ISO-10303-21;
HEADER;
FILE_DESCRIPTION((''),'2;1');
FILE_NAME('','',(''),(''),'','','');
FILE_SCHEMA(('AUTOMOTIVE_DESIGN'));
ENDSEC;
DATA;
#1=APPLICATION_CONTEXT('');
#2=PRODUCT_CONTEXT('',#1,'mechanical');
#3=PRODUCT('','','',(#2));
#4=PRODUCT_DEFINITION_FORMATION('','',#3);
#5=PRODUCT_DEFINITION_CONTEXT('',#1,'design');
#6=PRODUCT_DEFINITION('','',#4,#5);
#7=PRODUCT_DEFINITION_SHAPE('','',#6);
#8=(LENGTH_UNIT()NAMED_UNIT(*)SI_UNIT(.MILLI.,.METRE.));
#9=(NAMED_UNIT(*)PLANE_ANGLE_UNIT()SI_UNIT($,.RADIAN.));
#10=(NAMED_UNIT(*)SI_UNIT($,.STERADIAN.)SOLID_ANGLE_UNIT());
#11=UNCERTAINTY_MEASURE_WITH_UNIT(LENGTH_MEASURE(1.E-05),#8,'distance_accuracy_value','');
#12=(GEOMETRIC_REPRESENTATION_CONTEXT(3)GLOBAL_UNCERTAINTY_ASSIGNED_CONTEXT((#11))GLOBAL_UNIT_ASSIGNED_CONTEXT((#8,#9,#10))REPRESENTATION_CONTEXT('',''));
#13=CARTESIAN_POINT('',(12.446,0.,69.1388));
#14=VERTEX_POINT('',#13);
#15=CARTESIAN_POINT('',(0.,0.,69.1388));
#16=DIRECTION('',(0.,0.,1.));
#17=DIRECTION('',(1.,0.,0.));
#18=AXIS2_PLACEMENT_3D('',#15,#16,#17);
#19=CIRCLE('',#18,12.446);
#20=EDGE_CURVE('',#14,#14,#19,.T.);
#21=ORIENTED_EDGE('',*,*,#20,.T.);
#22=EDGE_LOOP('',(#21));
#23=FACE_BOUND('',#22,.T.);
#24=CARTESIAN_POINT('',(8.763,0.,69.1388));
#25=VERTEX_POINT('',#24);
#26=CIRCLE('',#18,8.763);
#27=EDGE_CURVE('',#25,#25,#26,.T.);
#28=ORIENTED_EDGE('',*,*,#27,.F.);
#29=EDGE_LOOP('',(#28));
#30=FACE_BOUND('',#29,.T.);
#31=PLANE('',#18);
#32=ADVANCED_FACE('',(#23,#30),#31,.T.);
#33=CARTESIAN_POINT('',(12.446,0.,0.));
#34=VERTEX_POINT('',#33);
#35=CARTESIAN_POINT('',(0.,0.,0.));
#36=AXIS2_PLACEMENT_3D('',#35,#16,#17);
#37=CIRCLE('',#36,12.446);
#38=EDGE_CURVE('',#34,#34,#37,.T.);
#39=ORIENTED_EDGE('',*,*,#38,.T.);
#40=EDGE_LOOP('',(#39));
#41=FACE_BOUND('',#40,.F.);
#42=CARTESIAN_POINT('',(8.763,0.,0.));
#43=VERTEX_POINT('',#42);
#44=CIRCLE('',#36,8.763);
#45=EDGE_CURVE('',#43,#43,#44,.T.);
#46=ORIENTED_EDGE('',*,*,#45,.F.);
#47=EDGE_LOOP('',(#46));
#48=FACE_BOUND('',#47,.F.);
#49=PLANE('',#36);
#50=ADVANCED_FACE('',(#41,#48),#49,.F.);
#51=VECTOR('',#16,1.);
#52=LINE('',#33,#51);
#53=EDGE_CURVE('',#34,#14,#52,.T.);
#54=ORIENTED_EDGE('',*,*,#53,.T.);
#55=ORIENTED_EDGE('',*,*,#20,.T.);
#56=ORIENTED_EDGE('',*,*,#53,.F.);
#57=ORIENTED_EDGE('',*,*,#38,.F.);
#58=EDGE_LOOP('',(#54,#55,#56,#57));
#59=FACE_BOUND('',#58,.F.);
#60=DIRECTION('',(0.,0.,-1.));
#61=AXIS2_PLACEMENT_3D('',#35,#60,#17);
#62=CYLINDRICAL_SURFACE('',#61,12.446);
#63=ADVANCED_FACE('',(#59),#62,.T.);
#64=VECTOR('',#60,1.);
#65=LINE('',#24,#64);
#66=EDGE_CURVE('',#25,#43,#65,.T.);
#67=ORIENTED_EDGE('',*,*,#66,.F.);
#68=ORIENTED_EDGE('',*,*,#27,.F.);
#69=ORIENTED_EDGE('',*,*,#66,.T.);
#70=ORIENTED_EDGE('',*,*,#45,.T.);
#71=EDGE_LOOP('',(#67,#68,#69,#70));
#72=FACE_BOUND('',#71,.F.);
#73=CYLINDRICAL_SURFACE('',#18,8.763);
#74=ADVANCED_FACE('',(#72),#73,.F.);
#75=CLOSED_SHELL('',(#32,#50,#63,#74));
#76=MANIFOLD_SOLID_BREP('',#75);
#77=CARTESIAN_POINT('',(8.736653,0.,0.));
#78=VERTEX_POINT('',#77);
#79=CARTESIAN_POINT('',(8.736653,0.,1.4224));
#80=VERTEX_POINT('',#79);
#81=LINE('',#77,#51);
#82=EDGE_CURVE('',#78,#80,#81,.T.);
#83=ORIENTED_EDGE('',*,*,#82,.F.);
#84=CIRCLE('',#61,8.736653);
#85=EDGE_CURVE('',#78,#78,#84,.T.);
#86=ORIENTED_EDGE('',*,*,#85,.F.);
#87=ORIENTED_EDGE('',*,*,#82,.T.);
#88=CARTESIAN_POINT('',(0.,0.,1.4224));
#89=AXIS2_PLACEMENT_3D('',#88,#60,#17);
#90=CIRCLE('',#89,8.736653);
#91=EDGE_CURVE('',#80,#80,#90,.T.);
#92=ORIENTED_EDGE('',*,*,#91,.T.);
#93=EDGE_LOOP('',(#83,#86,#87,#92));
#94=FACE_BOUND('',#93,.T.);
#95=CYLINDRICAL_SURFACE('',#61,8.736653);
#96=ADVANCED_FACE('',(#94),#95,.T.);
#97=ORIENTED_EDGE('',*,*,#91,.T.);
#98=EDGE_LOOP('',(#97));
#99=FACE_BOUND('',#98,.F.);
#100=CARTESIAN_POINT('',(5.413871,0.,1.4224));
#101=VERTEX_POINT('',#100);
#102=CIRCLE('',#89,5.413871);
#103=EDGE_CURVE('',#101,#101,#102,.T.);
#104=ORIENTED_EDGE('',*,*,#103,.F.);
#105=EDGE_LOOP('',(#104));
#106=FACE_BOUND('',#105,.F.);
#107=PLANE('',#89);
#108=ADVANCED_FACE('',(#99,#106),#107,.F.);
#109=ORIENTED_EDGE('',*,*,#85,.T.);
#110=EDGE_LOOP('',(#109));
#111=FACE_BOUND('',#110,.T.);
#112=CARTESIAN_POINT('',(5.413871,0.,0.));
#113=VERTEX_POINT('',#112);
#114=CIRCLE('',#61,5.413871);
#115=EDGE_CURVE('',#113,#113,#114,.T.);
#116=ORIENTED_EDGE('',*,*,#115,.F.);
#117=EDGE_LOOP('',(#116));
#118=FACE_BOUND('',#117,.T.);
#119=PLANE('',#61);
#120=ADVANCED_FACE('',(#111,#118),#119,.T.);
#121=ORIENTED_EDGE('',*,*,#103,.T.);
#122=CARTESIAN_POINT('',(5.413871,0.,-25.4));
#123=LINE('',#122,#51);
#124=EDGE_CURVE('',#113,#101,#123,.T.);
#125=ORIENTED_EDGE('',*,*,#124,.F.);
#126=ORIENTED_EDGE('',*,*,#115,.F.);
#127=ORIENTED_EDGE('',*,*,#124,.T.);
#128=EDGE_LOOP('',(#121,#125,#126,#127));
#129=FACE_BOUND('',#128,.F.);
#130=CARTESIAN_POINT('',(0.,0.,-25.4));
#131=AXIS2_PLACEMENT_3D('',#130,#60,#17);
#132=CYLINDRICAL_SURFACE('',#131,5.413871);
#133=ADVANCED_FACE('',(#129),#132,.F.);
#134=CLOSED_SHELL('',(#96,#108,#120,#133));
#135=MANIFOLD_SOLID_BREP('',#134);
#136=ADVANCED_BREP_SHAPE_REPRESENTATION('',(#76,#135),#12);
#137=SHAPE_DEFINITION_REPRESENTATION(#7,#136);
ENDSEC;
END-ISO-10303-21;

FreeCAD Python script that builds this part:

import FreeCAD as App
import Part
import Sketcher
Q = App.Units.Quantity

doc = App.newDocument("Part")
body = doc.addObject("PartDesign::Body", "Body")

# Sketch on XY plane
sketch1 = body.newObject("Sketcher::SketchObject", "Sketch")
sketch1.AttachmentSupport = (doc.getObject("XY_Plane"), [""])
sketch1.MapMode = "FlatFace"
sketch1.addGeometry(Part.Circle(App.Vector(0, 0, 0), App.Vector(0, 0, 1), 12), False)
sketch1.addConstraint([
    Sketcher.Constraint("Coincident", 0, 3, -1, 1),
    Sketcher.Constraint("Diameter", 0, Q("0.98 in")),
])
pad1 = body.newObject("PartDesign::Pad", "Pad")
pad1.Profile = sketch1
pad1.Length = Q("2.722 in")

# Sketch on XY plane
sketch2 = body.newObject("Sketcher::SketchObject", "Sketch001")
sketch2.AttachmentSupport = (doc.getObject("XY_Plane"), [""])
sketch2.MapMode = "FlatFace"
sketch2.AttachmentOffset = App.Placement(App.Vector(0, 0, 2.722 * 25.4), App.Rotation())
sketch2.addGeometry(Part.Circle(App.Vector(0, 0, 0), App.Vector(0, 0, 1), 9), False)
sketch2.addConstraint([
    Sketcher.Constraint("Coincident", 0, 3, -1, 1),
    Sketcher.Constraint("Diameter", 0, Q("0.69 in")),
])
pocket1 = body.newObject("PartDesign::Pocket", "Pocket")
pocket1.Profile = sketch2
pocket1.Type = "ThroughAll"
body2 = doc.addObject("PartDesign::Body", "Body001")

# Sketch on XY plane
sketch3 = body2.newObject("Sketcher::SketchObject", "Sketch002")
sketch3.AttachmentSupport = (doc.getObject("XY_Plane001"), [""])
sketch3.MapMode = "FlatFace"
sketch3.addGeometry(Part.Circle(App.Vector(0, 0, 0), App.Vector(0, 0, 1), 9), False)
sketch3.addConstraint([
    Sketcher.Constraint("Coincident", 0, 3, -1, 1),
    Sketcher.Constraint("Diameter", 0, 17.473306),
])
pad2 = body2.newObject("PartDesign::Pad", "Pad001")
pad2.Profile = sketch3
pad2.Length = Q("0.056 in")

# Sketch on XY plane
sketch4 = body2.newObject("Sketcher::SketchObject", "Sketch003")
sketch4.AttachmentSupport = (doc.getObject("XY_Plane001"), [""])
sketch4.MapMode = "FlatFace"
sketch4.addGeometry(Part.Circle(App.Vector(0, 0, 0), App.Vector(0, 0, 1), 5), False)
sketch4.addConstraint([
    Sketcher.Constraint("Coincident", 0, 3, -1, 1),
    Sketcher.Constraint("Diameter", 0, 10.827742),
])
pad3 = body2.newObject("PartDesign::Pad", "Pad002")
pad3.Profile = sketch4
pad3.Length = Q("1 in")
pad3.Reversed = True

# Sketch on XY plane
sketch5 = body2.newObject("Sketcher::SketchObject", "Sketch004")
sketch5.AttachmentSupport = (doc.getObject("XY_Plane001"), [""])
sketch5.MapMode = "FlatFace"
sketch5.AttachmentOffset = App.Placement(App.Vector(0, 0, -1 * 25.4), App.Rotation())
sketch5.addGeometry(Part.Circle(App.Vector(0, 0, 0), App.Vector(0, 0, 1), 5), False)
sketch5.addConstraint([
    Sketcher.Constraint("Coincident", 0, 3, -1, 1),
    Sketcher.Constraint("Diameter", 0, 10.827742),
])
pocket2 = body2.newObject("PartDesign::Pocket", "Pocket001")
pocket2.Profile = sketch5
pocket2.Type = "ThroughAll"
pocket2.Reversed = True

doc.recompute()
